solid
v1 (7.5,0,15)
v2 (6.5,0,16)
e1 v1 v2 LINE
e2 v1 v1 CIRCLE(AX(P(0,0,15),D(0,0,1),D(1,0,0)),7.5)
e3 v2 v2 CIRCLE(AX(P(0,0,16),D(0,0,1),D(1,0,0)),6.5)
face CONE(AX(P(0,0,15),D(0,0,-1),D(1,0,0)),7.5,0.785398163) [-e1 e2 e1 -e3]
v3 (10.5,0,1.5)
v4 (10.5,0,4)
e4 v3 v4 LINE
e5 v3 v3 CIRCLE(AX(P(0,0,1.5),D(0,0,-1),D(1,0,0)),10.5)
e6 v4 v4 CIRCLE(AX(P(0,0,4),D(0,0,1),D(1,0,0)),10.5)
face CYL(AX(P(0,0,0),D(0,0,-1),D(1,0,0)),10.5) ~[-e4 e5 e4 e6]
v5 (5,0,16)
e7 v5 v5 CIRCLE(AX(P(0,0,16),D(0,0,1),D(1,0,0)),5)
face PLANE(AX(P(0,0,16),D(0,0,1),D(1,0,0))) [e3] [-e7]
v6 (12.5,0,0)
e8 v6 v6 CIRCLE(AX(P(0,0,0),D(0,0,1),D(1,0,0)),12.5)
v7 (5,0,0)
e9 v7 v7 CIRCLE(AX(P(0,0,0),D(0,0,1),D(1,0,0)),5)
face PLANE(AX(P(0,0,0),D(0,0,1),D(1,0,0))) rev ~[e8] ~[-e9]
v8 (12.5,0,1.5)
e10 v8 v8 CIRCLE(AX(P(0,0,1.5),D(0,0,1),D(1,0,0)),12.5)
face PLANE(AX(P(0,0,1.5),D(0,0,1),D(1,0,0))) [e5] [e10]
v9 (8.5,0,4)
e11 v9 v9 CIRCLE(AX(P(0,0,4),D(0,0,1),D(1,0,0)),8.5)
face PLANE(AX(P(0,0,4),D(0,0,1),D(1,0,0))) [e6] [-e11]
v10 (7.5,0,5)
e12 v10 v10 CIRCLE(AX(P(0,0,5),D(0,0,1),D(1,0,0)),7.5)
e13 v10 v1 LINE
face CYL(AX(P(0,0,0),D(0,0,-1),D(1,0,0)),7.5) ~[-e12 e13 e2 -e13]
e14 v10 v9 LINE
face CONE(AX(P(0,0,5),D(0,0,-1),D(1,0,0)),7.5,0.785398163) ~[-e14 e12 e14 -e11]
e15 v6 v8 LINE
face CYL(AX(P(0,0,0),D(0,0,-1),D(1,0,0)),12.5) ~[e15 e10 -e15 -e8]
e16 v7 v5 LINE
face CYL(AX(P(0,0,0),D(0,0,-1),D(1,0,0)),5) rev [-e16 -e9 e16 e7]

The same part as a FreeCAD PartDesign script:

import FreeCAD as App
import Part
import Sketcher

V = App.Vector


def edges_at(feature, points):
    """Names of the edges that pass closest to the given points."""
    edges = feature.Shape.Edges
    near = lambda p: min(range(len(edges)), key=lambda i: edges[i].distToShape(Part.Vertex(*p))[0])
    return sorted({f"Edge{near(p) + 1}" for p in points})

doc = App.newDocument("Part")
body = doc.addObject("PartDesign::Body", "Body")

sketch1 = doc.addObject("Sketcher::SketchObject", "Sketch")
body.addObject(sketch1)
sketch1.AttachmentSupport = (doc.XY_Plane, [""])
sketch1.MapMode = "FlatFace"
sketch1.addGeometry(Part.Circle(V(0, 0, 0), V(0, 0, 1), 12), False)
sketch1.addGeometry(Part.Circle(V(0, 0, 0), V(0, 0, 1), 8), False)
sketch1.addConstraint(Sketcher.Constraint("Coincident", 0, 3, -1, 1))
sketch1.addConstraint(Sketcher.Constraint("Coincident", 1, 3, -1, 1))
sketch1.addConstraint(Sketcher.Constraint("Diameter", 0, 25.0))
sketch1.addConstraint(Sketcher.Constraint("Diameter", 1, 15.0))
pad1 = doc.addObject("PartDesign::Pad", "Pad")
body.addObject(pad1)
pad1.Profile = sketch1
pad1.Length = 1.5

sketch2 = doc.addObject("Sketcher::SketchObject", "Sketch001")
body.addObject(sketch2)
sketch2.AttachmentSupport = (doc.XY_Plane, [""])
sketch2.MapMode = "FlatFace"
sketch2.addGeometry(Part.Circle(V(0, 0, 0), V(0, 0, 1), 10), False)
sketch2.addGeometry(Part.Circle(V(0, 0, 0), V(0, 0, 1), 8), False)
sketch2.addConstraint(Sketcher.Constraint("Coincident", 0, 3, -1, 1))
sketch2.addConstraint(Sketcher.Constraint("Coincident", 1, 3, -1, 1))
sketch2.addConstraint(Sketcher.Constraint("Diameter", 0, 21.0))
sketch2.addConstraint(Sketcher.Constraint("Diameter", 1, 15.0))
pad2 = doc.addObject("PartDesign::Pad", "Pad001")
body.addObject(pad2)
pad2.Profile = sketch2
pad2.Length = 4

sketch3 = doc.addObject("Sketcher::SketchObject", "Sketch002")
body.addObject(sketch3)
sketch3.AttachmentSupport = (doc.XY_Plane, [""])
sketch3.MapMode = "FlatFace"
sketch3.addGeometry(Part.Circle(V(0, 0, 0), V(0, 0, 1), 8), False)
sketch3.addGeometry(Part.Circle(V(0, 0, 0), V(0, 0, 1), 5), False)
sketch3.addConstraint(Sketcher.Constraint("Coincident", 0, 3, -1, 1))
sketch3.addConstraint(Sketcher.Constraint("Coincident", 1, 3, -1, 1))
sketch3.addConstraint(Sketcher.Constraint("Diameter", 0, 15.0))
sketch3.addConstraint(Sketcher.Constraint("Diameter", 1, 10.0))
pad3 = doc.addObject("PartDesign::Pad", "Pad002")
body.addObject(pad3)
pad3.Profile = sketch3
pad3.Length = 16
doc.recompute()

chamfer = doc.addObject("PartDesign::Chamfer", "Chamfer")
body.addObject(chamfer)
chamfer.Base = (pad3, edges_at(pad3, [(-7.5, 0, 16), (-7.5, 0, 4)]))
chamfer.Size = 1

doc.recompute()
